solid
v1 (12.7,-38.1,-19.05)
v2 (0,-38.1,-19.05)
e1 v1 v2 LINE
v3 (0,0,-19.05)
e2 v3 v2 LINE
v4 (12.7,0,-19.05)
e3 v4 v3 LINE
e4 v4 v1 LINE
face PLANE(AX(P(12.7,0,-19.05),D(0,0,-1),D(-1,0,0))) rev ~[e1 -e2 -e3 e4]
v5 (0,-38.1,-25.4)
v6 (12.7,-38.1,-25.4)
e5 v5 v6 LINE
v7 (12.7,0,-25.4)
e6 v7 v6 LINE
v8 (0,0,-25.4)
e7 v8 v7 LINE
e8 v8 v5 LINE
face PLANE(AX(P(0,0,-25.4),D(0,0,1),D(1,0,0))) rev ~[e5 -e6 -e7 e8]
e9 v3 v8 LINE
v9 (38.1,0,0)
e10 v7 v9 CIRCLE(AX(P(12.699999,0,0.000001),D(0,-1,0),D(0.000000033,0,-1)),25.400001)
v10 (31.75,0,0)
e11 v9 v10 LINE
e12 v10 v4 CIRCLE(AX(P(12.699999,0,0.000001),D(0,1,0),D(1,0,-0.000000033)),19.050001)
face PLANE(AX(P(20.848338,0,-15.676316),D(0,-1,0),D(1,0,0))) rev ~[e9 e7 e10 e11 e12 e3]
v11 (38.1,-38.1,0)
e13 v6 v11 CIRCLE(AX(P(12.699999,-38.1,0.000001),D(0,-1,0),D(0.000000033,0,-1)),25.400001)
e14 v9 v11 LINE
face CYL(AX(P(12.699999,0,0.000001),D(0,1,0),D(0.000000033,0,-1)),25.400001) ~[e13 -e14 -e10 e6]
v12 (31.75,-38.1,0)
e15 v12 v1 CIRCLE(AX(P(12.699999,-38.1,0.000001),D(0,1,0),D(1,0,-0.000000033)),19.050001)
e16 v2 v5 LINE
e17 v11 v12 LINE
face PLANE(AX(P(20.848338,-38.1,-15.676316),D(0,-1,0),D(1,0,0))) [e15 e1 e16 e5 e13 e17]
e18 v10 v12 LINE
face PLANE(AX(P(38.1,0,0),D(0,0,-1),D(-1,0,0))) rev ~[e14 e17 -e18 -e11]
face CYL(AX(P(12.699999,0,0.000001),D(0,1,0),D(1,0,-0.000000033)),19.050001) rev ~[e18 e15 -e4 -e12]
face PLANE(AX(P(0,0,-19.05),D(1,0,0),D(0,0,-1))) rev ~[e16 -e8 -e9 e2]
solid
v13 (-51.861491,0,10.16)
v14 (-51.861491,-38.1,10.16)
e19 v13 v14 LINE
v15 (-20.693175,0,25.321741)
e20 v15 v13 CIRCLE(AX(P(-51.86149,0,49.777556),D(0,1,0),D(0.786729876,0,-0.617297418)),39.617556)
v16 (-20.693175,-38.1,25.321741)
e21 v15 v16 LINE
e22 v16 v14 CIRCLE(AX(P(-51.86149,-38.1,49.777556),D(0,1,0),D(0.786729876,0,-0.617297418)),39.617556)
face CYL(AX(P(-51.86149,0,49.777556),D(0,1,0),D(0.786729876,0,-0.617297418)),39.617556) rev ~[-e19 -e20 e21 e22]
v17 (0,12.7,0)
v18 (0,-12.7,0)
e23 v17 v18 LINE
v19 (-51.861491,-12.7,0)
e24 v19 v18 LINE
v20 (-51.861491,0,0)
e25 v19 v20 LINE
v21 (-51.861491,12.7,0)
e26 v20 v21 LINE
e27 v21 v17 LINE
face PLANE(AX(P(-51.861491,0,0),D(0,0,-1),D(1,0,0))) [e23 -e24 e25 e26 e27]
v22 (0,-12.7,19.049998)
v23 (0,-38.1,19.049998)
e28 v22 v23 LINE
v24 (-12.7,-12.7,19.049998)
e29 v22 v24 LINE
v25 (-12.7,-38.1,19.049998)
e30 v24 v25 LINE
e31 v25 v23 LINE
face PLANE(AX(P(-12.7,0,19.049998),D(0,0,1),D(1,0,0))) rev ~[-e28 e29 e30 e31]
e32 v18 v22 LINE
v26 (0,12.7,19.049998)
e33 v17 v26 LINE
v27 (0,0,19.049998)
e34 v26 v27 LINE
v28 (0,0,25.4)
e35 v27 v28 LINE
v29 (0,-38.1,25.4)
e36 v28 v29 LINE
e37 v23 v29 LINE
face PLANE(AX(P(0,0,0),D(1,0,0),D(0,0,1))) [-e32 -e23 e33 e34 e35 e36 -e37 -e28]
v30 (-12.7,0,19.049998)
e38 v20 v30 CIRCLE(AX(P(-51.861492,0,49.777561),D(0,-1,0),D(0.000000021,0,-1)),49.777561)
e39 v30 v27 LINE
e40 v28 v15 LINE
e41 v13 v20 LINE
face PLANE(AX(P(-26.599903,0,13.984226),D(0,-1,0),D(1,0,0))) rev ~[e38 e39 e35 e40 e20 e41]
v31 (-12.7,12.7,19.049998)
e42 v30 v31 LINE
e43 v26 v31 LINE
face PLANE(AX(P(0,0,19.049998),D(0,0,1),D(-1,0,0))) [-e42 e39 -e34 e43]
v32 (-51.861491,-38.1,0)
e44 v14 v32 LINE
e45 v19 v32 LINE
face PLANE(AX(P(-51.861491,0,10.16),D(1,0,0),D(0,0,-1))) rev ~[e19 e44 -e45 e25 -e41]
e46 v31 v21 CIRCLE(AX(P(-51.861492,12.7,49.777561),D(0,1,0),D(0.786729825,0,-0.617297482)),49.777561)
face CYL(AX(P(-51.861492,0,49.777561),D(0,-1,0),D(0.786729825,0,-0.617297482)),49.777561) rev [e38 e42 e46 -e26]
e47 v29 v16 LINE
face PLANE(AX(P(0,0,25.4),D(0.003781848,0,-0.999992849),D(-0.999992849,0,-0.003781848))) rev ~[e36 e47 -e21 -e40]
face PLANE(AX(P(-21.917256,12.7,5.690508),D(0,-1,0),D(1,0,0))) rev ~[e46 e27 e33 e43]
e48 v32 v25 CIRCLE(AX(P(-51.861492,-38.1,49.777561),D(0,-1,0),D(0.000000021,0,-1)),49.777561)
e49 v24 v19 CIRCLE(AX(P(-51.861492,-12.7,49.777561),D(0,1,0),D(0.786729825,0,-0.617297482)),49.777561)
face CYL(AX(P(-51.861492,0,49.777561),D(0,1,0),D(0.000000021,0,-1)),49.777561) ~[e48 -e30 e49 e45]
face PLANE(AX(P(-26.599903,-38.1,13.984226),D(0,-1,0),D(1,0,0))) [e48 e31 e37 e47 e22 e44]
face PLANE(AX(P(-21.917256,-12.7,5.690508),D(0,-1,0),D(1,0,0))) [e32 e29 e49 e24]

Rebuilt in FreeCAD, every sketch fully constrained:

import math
import FreeCAD as App
import Part
import Sketcher

V = App.Vector
Q = App.Units.Quantity

doc = App.newDocument("Part")
body = doc.addObject("PartDesign::Body", "Body")
body.AllowCompound = True

# Sketch on XZ plane
sketch1 = doc.addObject("Sketcher::SketchObject", "Sketch")
body.addObject(sketch1)
sketch1.AttachmentSupport = (doc.XZ_Plane, [""])
sketch1.MapMode = "FlatFace"
sketch1.addGeometry(Part.LineSegment(V(-51.861491, 0, 0), V(0, 0, 0)), False)
sketch1.addGeometry(Part.LineSegment(V(0, 0, 0), V(0, 19.049998, 0)), False)
sketch1.addGeometry(Part.LineSegment(V(0, 19.049998, 0), V(-12.7, 19.049998, 0)), False)
sketch1.addGeometry(Part.ArcOfCircle(Part.Circle(V(-51.861492, 49.777561, 0), V(0, 0, 1), 49.777561), math.radians(-89.999999), math.radians(-38.11905)), False)
sketch1.addConstraint(Sketcher.Constraint("Coincident", 0, 2, 1, 1))
sketch1.addConstraint(Sketcher.Constraint("Coincident", 1, 2, 2, 1))
sketch1.addConstraint(Sketcher.Constraint("Coincident", 2, 2, 3, 2))
sketch1.addConstraint(Sketcher.Constraint("Tangent", 3, 1, 0, 1))
sketch1.addConstraint(Sketcher.Constraint("Horizontal", 0))
sketch1.addConstraint(Sketcher.Constraint("Vertical", 1))
sketch1.addConstraint(Sketcher.Constraint("Horizontal", 2))
sketch1.addConstraint(Sketcher.Constraint("Coincident", 0, 2, -1, 1))
sketch1.addConstraint(Sketcher.Constraint("DistanceX", 2, 2, 2, 1, Q("0.5 in")))
sketch1.addConstraint(Sketcher.Constraint("DistanceY", 1, 1, 1, 2, Q("0.7499999 in")))
sketch1.addConstraint(Sketcher.Constraint("Radius", 3, 49.777561))
pad1 = doc.addObject("PartDesign::Pad", "Pad")
body.addObject(pad1)
pad1.Profile = sketch1
pad1.Length = Q("1 in")
pad1.Midplane = True

# Sketch on XZ plane
sketch2 = doc.addObject("Sketcher::SketchObject", "Sketch001")
body.addObject(sketch2)
sketch2.AttachmentSupport = (doc.XZ_Plane, [""])
sketch2.MapMode = "FlatFace"
sketch2.addGeometry(Part.LineSegment(V(-51.861491, 10.16, 0), V(-51.861491, 0, 0)), False)
sketch2.addGeometry(Part.ArcOfCircle(Part.Circle(V(-51.861492, 49.777561, 0), V(0, 0, 1), 49.777561), math.radians(-89.999999), math.radians(-38.11905)), False)
sketch2.addGeometry(Part.LineSegment(V(-12.7, 19.049998, 0), V(0, 19.049998, 0)), False)
sketch2.addGeometry(Part.LineSegment(V(0, 19.049998, 0), V(0, 25.4, 0)), False)
sketch2.addGeometry(Part.LineSegment(V(0, 25.4, 0), V(-20.693175, 25.321741, 0)), False)
sketch2.addGeometry(Part.ArcOfCircle(Part.Circle(V(-51.86149, 49.777556, 0), V(0, 0, 1), 39.617556), math.radians(-90.000001), math.radians(-38.119045)), False)
sketch2.addGeometry(Part.LineSegment(V(12.7, -19.05, 0), V(0, -19.05, 0)), False)
sketch2.addGeometry(Part.LineSegment(V(0, -19.05, 0), V(0, -25.4, 0)), False)
sketch2.addGeometry(Part.LineSegment(V(0, -25.4, 0), V(12.7, -25.4, 0)), False)
sketch2.addGeometry(Part.ArcOfCircle(Part.Circle(V(12.699999, 0.000001, 0), V(0, 0, 1), 25.400001), math.radians(-89.999998), math.radians(-0.000002)), False)
sketch2.addGeometry(Part.LineSegment(V(38.1, 0, 0), V(31.75, 0, 0)), False)
sketch2.addGeometry(Part.ArcOfCircle(Part.Circle(V(12.699999, 0.000001, 0), V(0, 0, 1), 19.050001), math.radians(-89.999998), math.radians(-0.000002)), False)
sketch2.addConstraint(Sketcher.Constraint("Coincident", 0, 2, 1, 1))
sketch2.addConstraint(Sketcher.Constraint("Coincident", 1, 2, 2, 1))
sketch2.addConstraint(Sketcher.Constraint("Coincident", 2, 2, 3, 1))
sketch2.addConstraint(Sketcher.Constraint("Coincident", 3, 2, 4, 1))
sketch2.addConstraint(Sketcher.Constraint("Coincident", 4, 2, 5, 2))
sketch2.addConstraint(Sketcher.Constraint("Coincident", 5, 1, 0, 1))
sketch2.addConstraint(Sketcher.Constraint("Coincident", 6, 2, 7, 1))
sketch2.addConstraint(Sketcher.Constraint("Coincident", 7, 2, 8, 1))
sketch2.addConstraint(Sketcher.Constraint("Tangent", 8, 2, 9, 1))
sketch2.addConstraint(Sketcher.Constraint("Coincident", 9, 2, 10, 1))
sketch2.addConstraint(Sketcher.Constraint("Coincident", 10, 2, 11, 2))
sketch2.addConstraint(Sketcher.Constraint("Tangent", 11, 1, 6, 1))
sketch2.addConstraint(Sketcher.Constraint("Vertical", 0))
sketch2.addConstraint(Sketcher.Constraint("Horizontal", 2))
sketch2.addConstraint(Sketcher.Constraint("Vertical", 3))
sketch2.addConstraint(Sketcher.Constraint("Horizontal", 6))
sketch2.addConstraint(Sketcher.Constraint("Vertical", 7))
sketch2.addConstraint(Sketcher.Constraint("Horizontal", 8))
sketch2.addConstraint(Sketcher.Constraint("Horizontal", 10))
sketch2.addConstraint(Sketcher.Constraint("Coincident", 5, 3, 1, 3))
sketch2.addConstraint(Sketcher.Constraint("Coincident", 11, 3, 9, 3))
sketch2.addConstraint(Sketcher.Constraint("Symmetric", 2, 2, 6, 2, -1, 1))
sketch2.addConstraint(Sketcher.Constraint("Symmetric", 3, 2, 7, 2, -1))
sketch2.addConstraint(Sketcher.Constraint("PointOnObject", 9, 3, -1))
sketch2.addConstraint(Sketcher.Constraint("PointOnObject", 0, 2, -1))
sketch2.addConstraint(Sketcher.Constraint("PointOnObject", 9, 2, -1))
sketch2.addConstraint(Sketcher.Constraint("Vertical", 5, 3, 0, 2))
sketch2.addConstraint(Sketcher.Constraint("Equal", 2, 6))
sketch2.addConstraint(Sketcher.Constraint("Radius", 9, Q("1 in")))
sketch2.addConstraint(Sketcher.Constraint("Radius", 11, Q("0.75 in")))
sketch2.addConstraint(Sketcher.Constraint("DistanceX", 2, 1, 2, 2, Q("0.5 in")))
sketch2.addConstraint(Sketcher.Constraint("DistanceY", 0, 2, 0, 1, Q("0.4 in")))
sketch2.addConstraint(Sketcher.Constraint("Radius", 1, 49.777561))
sketch2.addConstraint(Sketcher.Constraint("DistanceY", -1, 1, 4, 2, 25.321741))
pad2 = doc.addObject("PartDesign::Pad", "Pad001")
body.addObject(pad2)
pad2.Profile = sketch2
pad2.Length = Q("1.5 in")

doc.recompute()
